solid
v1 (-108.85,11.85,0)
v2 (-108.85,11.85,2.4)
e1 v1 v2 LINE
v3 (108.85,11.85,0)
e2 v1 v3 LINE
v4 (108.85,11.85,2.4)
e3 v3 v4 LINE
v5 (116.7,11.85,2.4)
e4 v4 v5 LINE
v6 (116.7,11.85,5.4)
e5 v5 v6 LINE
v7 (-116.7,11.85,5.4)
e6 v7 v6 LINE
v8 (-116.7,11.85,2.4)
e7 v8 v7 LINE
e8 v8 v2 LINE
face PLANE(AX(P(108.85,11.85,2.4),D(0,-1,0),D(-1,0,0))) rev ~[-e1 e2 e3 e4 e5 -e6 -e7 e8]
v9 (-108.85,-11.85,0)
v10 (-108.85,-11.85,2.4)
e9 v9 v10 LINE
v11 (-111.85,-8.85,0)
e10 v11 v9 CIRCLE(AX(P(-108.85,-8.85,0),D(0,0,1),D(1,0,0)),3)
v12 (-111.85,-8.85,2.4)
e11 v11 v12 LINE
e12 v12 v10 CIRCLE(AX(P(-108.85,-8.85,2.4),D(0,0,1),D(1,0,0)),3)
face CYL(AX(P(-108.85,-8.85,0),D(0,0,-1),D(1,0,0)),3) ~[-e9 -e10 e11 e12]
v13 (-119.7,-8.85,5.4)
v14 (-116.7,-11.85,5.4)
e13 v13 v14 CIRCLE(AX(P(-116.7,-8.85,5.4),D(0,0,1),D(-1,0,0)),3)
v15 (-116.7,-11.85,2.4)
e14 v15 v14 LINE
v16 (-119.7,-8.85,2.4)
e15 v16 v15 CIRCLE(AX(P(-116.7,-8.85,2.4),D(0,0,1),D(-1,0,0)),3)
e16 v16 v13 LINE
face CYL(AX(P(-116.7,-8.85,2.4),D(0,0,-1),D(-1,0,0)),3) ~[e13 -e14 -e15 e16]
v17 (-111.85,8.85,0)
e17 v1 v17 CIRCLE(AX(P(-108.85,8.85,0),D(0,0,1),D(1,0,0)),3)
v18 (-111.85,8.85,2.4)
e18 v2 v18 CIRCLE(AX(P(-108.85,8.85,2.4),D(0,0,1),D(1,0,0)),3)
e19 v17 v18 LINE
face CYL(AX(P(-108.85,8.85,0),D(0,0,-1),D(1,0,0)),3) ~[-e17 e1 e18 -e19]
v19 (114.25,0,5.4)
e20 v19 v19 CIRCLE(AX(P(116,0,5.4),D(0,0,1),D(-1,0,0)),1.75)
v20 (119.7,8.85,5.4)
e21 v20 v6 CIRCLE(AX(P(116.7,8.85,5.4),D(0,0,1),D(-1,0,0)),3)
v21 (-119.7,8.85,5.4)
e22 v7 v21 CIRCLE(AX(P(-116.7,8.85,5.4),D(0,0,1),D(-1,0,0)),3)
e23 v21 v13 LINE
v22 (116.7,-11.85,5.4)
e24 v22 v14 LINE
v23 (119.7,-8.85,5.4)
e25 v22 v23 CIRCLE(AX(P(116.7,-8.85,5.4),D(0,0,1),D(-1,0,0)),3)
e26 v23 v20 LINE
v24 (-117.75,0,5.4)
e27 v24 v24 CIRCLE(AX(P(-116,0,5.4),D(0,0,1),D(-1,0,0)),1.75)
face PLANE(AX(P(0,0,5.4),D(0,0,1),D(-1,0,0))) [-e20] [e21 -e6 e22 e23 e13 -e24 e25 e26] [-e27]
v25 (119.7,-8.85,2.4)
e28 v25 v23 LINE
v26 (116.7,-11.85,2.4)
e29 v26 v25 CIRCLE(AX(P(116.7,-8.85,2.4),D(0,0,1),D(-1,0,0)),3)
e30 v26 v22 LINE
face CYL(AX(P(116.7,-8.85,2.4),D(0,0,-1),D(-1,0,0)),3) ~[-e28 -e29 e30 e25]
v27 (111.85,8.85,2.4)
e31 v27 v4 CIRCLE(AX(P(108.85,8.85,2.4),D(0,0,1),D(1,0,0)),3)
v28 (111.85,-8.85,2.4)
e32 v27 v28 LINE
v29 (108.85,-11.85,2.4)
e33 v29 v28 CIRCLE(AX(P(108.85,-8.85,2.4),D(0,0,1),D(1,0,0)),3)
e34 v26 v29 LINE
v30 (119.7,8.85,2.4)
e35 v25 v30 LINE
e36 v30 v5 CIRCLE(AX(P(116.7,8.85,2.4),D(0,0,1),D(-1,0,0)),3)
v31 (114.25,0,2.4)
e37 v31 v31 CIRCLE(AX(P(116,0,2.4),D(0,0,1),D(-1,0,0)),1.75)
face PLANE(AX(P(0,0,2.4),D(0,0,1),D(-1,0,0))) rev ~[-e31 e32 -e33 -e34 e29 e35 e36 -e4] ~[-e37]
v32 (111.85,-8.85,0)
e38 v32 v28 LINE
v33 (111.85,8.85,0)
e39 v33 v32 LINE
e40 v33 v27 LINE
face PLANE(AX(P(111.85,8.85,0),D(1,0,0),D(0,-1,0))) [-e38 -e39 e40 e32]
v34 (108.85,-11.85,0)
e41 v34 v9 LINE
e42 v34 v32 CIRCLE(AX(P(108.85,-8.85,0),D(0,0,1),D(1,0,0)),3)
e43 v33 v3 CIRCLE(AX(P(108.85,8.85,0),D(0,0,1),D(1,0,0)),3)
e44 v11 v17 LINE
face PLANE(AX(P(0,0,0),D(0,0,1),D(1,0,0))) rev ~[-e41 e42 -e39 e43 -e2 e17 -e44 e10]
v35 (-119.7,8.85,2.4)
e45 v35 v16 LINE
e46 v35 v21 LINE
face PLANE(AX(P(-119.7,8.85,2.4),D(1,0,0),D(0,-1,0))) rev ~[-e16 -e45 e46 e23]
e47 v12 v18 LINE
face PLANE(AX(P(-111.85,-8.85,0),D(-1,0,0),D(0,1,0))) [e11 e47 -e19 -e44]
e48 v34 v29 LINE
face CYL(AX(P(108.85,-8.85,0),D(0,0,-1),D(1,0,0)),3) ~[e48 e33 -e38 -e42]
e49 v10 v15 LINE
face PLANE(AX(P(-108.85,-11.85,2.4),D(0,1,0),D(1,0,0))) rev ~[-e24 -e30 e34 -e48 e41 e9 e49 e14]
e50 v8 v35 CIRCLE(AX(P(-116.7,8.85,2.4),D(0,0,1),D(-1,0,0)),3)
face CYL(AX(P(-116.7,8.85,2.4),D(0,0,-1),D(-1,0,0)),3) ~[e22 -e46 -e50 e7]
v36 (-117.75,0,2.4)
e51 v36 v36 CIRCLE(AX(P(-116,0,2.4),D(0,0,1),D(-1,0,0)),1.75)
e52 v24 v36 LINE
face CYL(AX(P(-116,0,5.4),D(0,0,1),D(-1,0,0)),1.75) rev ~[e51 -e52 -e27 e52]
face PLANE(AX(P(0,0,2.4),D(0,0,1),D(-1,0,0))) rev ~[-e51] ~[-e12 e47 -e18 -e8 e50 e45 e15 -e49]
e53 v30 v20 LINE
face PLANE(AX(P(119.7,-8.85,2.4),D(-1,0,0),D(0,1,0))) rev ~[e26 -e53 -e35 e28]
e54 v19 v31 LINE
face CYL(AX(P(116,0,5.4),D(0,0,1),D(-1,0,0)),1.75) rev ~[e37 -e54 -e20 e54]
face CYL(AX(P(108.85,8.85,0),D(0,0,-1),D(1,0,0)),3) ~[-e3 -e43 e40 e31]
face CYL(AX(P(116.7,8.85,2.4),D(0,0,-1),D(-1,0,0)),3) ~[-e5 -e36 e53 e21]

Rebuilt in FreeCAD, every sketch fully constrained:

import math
import FreeCAD as App
import Part
import Sketcher

V = App.Vector
Q = App.Units.Quantity

doc = App.newDocument("Part")
body = doc.addObject("PartDesign::Body", "Body")

# Sketch on XY plane
sketch1 = body.newObject("Sketcher::SketchObject", "Sketch")
sketch1.AttachmentSupport = (doc.getObject("XY_Plane"), [""])
sketch1.MapMode = "FlatFace"
sketch1.addGeometry(Part.ArcOfCircle(Part.Circle(V(-108.8, 8.8, 0), V(0, 0, 1), 3), math.radians(90), math.radians(180)), False)
sketch1.addGeometry(Part.LineSegment(V(-111.8, 8.8, 0), V(-111.8, -8.8, 0)), False)
sketch1.addGeometry(Part.ArcOfCircle(Part.Circle(V(-108.8, -8.8, 0), V(0, 0, 1), 3), math.radians(180), math.radians(270)), False)
sketch1.addGeometry(Part.LineSegment(V(-108.8, -11.8, 0), V(108.8, -11.8, 0)), False)
sketch1.addGeometry(Part.ArcOfCircle(Part.Circle(V(108.8, -8.8, 0), V(0, 0, 1), 3), math.radians(-90), math.radians(0)), False)
sketch1.addGeometry(Part.LineSegment(V(111.8, -8.8, 0), V(111.8, 8.8, 0)), False)
sketch1.addGeometry(Part.ArcOfCircle(Part.Circle(V(108.8, 8.8, 0), V(0, 0, 1), 3), math.radians(0), math.radians(90)), False)
sketch1.addGeometry(Part.LineSegment(V(108.8, 11.8, 0), V(-108.8, 11.8, 0)), False)
sketch1.addConstraint(Sketcher.Constraint("Tangent", 0, 2, 1, 1))
sketch1.addConstraint(Sketcher.Constraint("Tangent", 1, 2, 2, 1))
sketch1.addConstraint(Sketcher.Constraint("Tangent", 2, 2, 3, 1))
sketch1.addConstraint(Sketcher.Constraint("Tangent", 3, 2, 4, 1))
sketch1.addConstraint(Sketcher.Constraint("Tangent", 4, 2, 5, 1))
sketch1.addConstraint(Sketcher.Constraint("Tangent", 5, 2, 6, 1))
sketch1.addConstraint(Sketcher.Constraint("Tangent", 6, 2, 7, 1))
sketch1.addConstraint(Sketcher.Constraint("Tangent", 7, 2, 0, 1))
sketch1.addConstraint(Sketcher.Constraint("Vertical", 1))
sketch1.addConstraint(Sketcher.Constraint("Horizontal", 3))
sketch1.addConstraint(Sketcher.Constraint("Vertical", 5))
sketch1.addConstraint(Sketcher.Constraint("Horizontal", 7))
sketch1.addConstraint(Sketcher.Constraint("Equal", 0, 2))
sketch1.addConstraint(Sketcher.Constraint("Equal", 2, 4))
sketch1.addConstraint(Sketcher.Constraint("Equal", 4, 6))
sketch1.addConstraint(Sketcher.Constraint("Symmetric", 0, 3, 4, 3, -1, 1))
sketch1.addConstraint(Sketcher.Constraint("Radius", 0, Q("3 mm")))
sketch1.addConstraint(Sketcher.Constraint("DistanceX", 3, 1, 3, 2, Q("217.7 mm")))
sketch1.addConstraint(Sketcher.Constraint("DistanceY", 1, 2, 1, 1, Q("17.7 mm")))
pad1 = body.newObject("PartDesign::Pad", "Pad")
pad1.Profile = sketch1
pad1.Length = 2.4

# Sketch on XY plane
sketch2 = body.newObject("Sketcher::SketchObject", "Sketch001")
sketch2.AttachmentSupport = (doc.getObject("XY_Plane"), [""])
sketch2.MapMode = "FlatFace"
sketch2.AttachmentOffset = App.Placement(V(0, 0, 2.4), App.Rotation())
sketch2.addGeometry(Part.ArcOfCircle(Part.Circle(V(116.7, -8.8, 0), V(0, 0, 1), 3), math.radians(-90), math.radians(0)), False)
sketch2.addGeometry(Part.LineSegment(V(119.7, -8.8, 0), V(119.7, 8.8, 0)), False)
sketch2.addGeometry(Part.ArcOfCircle(Part.Circle(V(116.7, 8.8, 0), V(0, 0, 1), 3), math.radians(0), math.radians(90)), False)
sketch2.addGeometry(Part.LineSegment(V(116.7, 11.8, 0), V(-116.7, 11.8, 0)), False)
sketch2.addGeometry(Part.ArcOfCircle(Part.Circle(V(-116.7, 8.8, 0), V(0, 0, 1), 3), math.radians(90), math.radians(180)), False)
sketch2.addGeometry(Part.LineSegment(V(-119.7, 8.8, 0), V(-119.7, -8.8, 0)), False)
sketch2.addGeometry(Part.ArcOfCircle(Part.Circle(V(-116.7, -8.8, 0), V(0, 0, 1), 3), math.radians(180), math.radians(270)), False)
sketch2.addGeometry(Part.LineSegment(V(-116.7, -11.8, 0), V(116.7, -11.8, 0)), False)
sketch2.addConstraint(Sketcher.Constraint("Tangent", 0, 2, 1, 1))
sketch2.addConstraint(Sketcher.Constraint("Tangent", 1, 2, 2, 1))
sketch2.addConstraint(Sketcher.Constraint("Tangent", 2, 2, 3, 1))
sketch2.addConstraint(Sketcher.Constraint("Tangent", 3, 2, 4, 1))
sketch2.addConstraint(Sketcher.Constraint("Tangent", 4, 2, 5, 1))
sketch2.addConstraint(Sketcher.Constraint("Tangent", 5, 2, 6, 1))
sketch2.addConstraint(Sketcher.Constraint("Tangent", 6, 2, 7, 1))
sketch2.addConstraint(Sketcher.Constraint("Tangent", 7, 2, 0, 1))
sketch2.addConstraint(Sketcher.Constraint("Vertical", 1))
sketch2.addConstraint(Sketcher.Constraint("Horizontal", 3))
sketch2.addConstraint(Sketcher.Constraint("Vertical", 5))
sketch2.addConstraint(Sketcher.Constraint("Horizontal", 7))
sketch2.addConstraint(Sketcher.Constraint("Equal", 0, 2))
sketch2.addConstraint(Sketcher.Constraint("Equal", 2, 4))
sketch2.addConstraint(Sketcher.Constraint("Equal", 4, 6))
sketch2.addConstraint(Sketcher.Constraint("Symmetric", 0, 3, 4, 3, -1, 1))
sketch2.addConstraint(Sketcher.Constraint("Radius", 0, Q("3 mm")))
sketch2.addConstraint(Sketcher.Constraint("DistanceX", 3, 2, 3, 1, Q("233.4 mm")))
sketch2.addConstraint(Sketcher.Constraint("DistanceY", 1, 1, 1, 2, Q("17.7 mm")))
pad2 = body.newObject("PartDesign::Pad", "Pad001")
pad2.Profile = sketch2
pad2.Length = 3

# Sketch on XY plane
sketch3 = body.newObject("Sketcher::SketchObject", "Sketch002")
sketch3.AttachmentSupport = (doc.getObject("XY_Plane"), [""])
sketch3.MapMode = "FlatFace"
sketch3.AttachmentOffset = App.Placement(V(0, 0, 5.4), App.Rotation())
sketch3.addGeometry(Part.Circle(V(-116, 0, 0), V(0, 0, 1), 1.8), False)
sketch3.addGeometry(Part.Circle(V(116, 0, 0), V(0, 0, 1), 1.8), False)
sketch3.addConstraint(Sketcher.Constraint("Equal", 0, 1))
sketch3.addConstraint(Sketcher.Constraint("Symmetric", 0, 3, 1, 3, -1, 1))
sketch3.addConstraint(Sketcher.Constraint("PointOnObject", 0, 3, -1))
sketch3.addConstraint(Sketcher.Constraint("Diameter", 0, Q("3.5 mm")))
sketch3.addConstraint(Sketcher.Constraint("DistanceX", 0, 3, -1, 1, Q("116 mm")))
pocket1 = body.newObject("PartDesign::Pocket", "Pocket")
pocket1.Profile = sketch3
pocket1.Length = 6

doc.recompute()
